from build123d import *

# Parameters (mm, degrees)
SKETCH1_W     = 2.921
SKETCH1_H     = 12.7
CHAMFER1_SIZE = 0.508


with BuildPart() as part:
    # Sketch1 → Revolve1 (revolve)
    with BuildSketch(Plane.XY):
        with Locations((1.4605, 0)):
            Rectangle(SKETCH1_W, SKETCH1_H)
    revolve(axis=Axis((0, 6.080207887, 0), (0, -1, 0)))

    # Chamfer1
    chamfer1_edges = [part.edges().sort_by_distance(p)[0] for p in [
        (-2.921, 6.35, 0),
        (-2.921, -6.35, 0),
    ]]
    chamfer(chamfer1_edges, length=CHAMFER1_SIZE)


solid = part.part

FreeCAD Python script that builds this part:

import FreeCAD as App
import Part
import Sketcher
from FreeCAD import Vector
Q = App.Units.Quantity


def edges_at(feature, points):
    """Names of the edges that pass closest to the given points."""
    edges = feature.Shape.Edges
    near = lambda p: min(range(len(edges)), key=lambda i: edges[i].distToShape(Part.Vertex(*p))[0])
    return sorted({f"Edge{near(p) + 1}" for p in points})


def add_polygon(sketch, points):
    """Adds a closed chain of lines whose ends are joined by coincident constraints."""
    first, n = sketch.GeometryCount, len(points)
    for a, b in zip(points, points[1:] + points[:1]):
        sketch.addGeometry(Part.LineSegment(App.Vector(*a, 0), App.Vector(*b, 0)), False)
    for i in range(n):
        sketch.addConstraint(Sketcher.Constraint("Coincident", first + i, 2, first + (i + 1) % n, 1))

doc = App.newDocument("Part")
body = doc.addObject("PartDesign::Body", "Body")

sketch1 = doc.addObject("Sketcher::SketchObject", "Sketch")
body.addObject(sketch1)
sketch1.AttachmentSupport = (doc.XY_Plane, [""])
sketch1.MapMode = "FlatFace"
add_polygon(sketch1, [(0, 6.3), (0, -6.3), (2.9, -6.3), (2.9, 6.3)])
sketch1.addConstraint([
    Sketcher.Constraint("Vertical", 0),
    Sketcher.Constraint("Horizontal", 1),
    Sketcher.Constraint("Vertical", 2),
    Sketcher.Constraint("Horizontal", 3),
    Sketcher.Constraint("Symmetric", 0, 2, 3, 2, -1, 1),
    Sketcher.Constraint("DistanceY", 0, 2, 0, 1, Q("0.5 in")),
    Sketcher.Constraint("DistanceX", 1, 1, 1, 2, Q("0.115 in")),
])
revolution = doc.addObject("PartDesign::Revolution", "Revolution")
body.addObject(revolution)
revolution.Profile = sketch1
revolution.ReferenceAxis = (sketch1, ["V_Axis"])
revolution.Angle = 360
doc.recompute()

chamfer = doc.addObject("PartDesign::Chamfer", "Chamfer")
body.addObject(chamfer)
chamfer.Base = (revolution, edges_at(revolution, [(-2.921, 6.35, 0), (-2.921, -6.35, 0)]))
chamfer.Size = Q("0.02 in")

doc.recompute()
